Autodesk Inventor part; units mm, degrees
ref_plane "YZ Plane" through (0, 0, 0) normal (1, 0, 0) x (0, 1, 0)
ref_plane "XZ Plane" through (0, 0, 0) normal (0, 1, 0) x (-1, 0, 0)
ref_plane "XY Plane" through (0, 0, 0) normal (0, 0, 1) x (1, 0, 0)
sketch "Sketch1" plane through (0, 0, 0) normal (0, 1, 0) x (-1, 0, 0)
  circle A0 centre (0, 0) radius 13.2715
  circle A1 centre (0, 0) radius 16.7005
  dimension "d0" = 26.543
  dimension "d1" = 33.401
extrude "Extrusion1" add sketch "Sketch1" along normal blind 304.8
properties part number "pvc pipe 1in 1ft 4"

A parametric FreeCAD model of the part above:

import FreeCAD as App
import Part
import Sketcher

V = App.Vector
Q = App.Units.Quantity

doc = App.newDocument("Part")
body = doc.addObject("PartDesign::Body", "Body")

sketch1 = body.newObject("Sketcher::SketchObject", "Sketch")
sketch1.AttachmentSupport = (doc.getObject("XZ_Plane"), [""])
sketch1.MapMode = "FlatFace"
sketch1.addGeometry(Part.Circle(V(0, 0, 0), V(0, 0, 1), 16.7005), False)
sketch1.addGeometry(Part.Circle(V(0, 0, 0), V(0, 0, 1), 13.2715), False)
sketch1.addConstraint(Sketcher.Constraint("Coincident", 0, 3, -1, 1))
sketch1.addConstraint(Sketcher.Constraint("Coincident", 1, 3, -1, 1))
sketch1.addConstraint(Sketcher.Constraint("Diameter", 0, Q("1.315 in")))
sketch1.addConstraint(Sketcher.Constraint("Diameter", 1, Q("1.045 in")))
pad1 = body.newObject("PartDesign::Pad", "Pad")
pad1.Profile = sketch1
pad1.Length = Q("12 in")
pad1.Reversed = True

doc.recompute()
